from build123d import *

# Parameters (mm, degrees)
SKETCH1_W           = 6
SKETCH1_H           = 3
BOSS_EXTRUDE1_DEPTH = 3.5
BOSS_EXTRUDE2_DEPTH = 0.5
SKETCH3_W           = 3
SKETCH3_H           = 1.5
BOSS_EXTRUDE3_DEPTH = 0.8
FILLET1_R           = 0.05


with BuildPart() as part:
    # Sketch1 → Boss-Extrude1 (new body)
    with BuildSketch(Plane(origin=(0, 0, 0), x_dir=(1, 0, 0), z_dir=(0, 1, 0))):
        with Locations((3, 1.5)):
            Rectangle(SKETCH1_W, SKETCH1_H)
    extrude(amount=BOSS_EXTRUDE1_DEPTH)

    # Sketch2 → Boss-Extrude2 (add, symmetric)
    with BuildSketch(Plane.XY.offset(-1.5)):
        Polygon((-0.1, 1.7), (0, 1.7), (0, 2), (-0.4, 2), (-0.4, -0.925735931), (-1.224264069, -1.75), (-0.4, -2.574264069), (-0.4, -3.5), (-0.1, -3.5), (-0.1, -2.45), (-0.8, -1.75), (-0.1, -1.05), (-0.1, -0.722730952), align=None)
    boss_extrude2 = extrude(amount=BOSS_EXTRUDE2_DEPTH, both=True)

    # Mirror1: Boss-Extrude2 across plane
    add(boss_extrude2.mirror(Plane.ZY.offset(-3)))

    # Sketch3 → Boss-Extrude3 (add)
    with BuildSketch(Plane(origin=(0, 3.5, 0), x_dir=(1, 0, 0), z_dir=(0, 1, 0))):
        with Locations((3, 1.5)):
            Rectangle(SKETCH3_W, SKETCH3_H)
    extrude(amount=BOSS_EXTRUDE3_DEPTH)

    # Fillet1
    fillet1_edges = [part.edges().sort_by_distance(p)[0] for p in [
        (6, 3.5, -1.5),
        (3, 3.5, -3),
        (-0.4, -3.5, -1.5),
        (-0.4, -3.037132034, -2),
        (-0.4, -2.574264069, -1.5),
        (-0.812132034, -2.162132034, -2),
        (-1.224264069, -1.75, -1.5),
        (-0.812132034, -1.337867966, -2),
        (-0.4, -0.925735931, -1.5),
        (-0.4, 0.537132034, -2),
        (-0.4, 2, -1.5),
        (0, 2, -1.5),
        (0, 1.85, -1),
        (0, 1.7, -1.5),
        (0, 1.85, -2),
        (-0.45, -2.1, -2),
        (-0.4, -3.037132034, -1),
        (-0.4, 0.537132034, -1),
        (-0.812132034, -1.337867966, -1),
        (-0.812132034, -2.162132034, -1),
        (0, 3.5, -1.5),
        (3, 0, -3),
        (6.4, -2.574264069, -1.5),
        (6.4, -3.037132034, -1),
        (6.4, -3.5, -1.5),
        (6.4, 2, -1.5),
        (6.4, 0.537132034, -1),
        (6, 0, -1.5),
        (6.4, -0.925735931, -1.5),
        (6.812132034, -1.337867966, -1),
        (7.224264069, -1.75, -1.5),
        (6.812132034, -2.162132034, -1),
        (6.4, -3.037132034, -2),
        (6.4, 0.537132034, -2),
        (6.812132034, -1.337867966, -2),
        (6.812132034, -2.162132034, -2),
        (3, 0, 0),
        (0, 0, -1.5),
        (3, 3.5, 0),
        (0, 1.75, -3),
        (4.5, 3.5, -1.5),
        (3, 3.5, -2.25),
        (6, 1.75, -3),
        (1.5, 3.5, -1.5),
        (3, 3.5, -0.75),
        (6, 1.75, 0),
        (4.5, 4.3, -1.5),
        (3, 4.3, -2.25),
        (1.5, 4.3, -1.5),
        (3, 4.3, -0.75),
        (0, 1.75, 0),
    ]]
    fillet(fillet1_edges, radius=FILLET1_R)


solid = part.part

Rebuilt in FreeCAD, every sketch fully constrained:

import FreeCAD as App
import Part
import Sketcher
from FreeCAD import Vector
Q = App.Units.Quantity


def edges_at(feature, points):
    """Names of the edges that pass closest to the given points."""
    edges = feature.Shape.Edges
    near = lambda p: min(range(len(edges)), key=lambda i: edges[i].distToShape(Part.Vertex(*p))[0])
    return sorted({f"Edge{near(p) + 1}" for p in points})


def add_polygon(sketch, points):
    """Adds a closed chain of lines whose ends are joined by coincident constraints."""
    first, n = sketch.GeometryCount, len(points)
    for a, b in zip(points, points[1:] + points[:1]):
        sketch.addGeometry(Part.LineSegment(App.Vector(*a, 0), App.Vector(*b, 0)), False)
    for i in range(n):
        sketch.addConstraint(Sketcher.Constraint("Coincident", first + i, 2, first + (i + 1) % n, 1))

doc = App.newDocument("Part")
body = doc.addObject("PartDesign::Body", "Body")

# Sketch on XZ plane
sketch1 = body.newObject("Sketcher::SketchObject", "Sketch")
sketch1.AttachmentSupport = (doc.getObject("XZ_Plane"), [""])
sketch1.MapMode = "FlatFace"
add_polygon(sketch1, [(0, -3), (0, 0), (6, 0), (6, -3)])  # lines 0-3
sketch1.addConstraint([
    Sketcher.Constraint("Vertical", 0),
    Sketcher.Constraint("Horizontal", 1),
    Sketcher.Constraint("Vertical", 2),
    Sketcher.Constraint("Horizontal", 3),
    Sketcher.Constraint("Coincident", 0, 2, -1, 1),
    Sketcher.Constraint("DistanceX", 1, 1, 1, 2, Q("6 mm")),
    Sketcher.Constraint("DistanceY", 0, 1, 0, 2, Q("3 mm")),
])
pad1 = body.newObject("PartDesign::Pad", "Pad")
pad1.Profile = sketch1
pad1.Length = 3.5
pad1.Reversed = True

# Sketch on XY plane
sketch2 = body.newObject("Sketcher::SketchObject", "Sketch001")
sketch2.AttachmentSupport = (doc.getObject("XY_Plane"), [""])
sketch2.MapMode = "FlatFace"
sketch2.AttachmentOffset = App.Placement(Vector(0, 0, -1.5), App.Rotation())
add_polygon(sketch2, [(-0.1, 1.7), (0, 1.7), (0, 2), (-0.4, 2), (-0.4, -0.93), (-1.22, -1.75), (-0.4, -2.57), (-0.4, -3.5), (-0.1, -3.5), (-0.1, -2.45), (-0.8, -1.75), (-0.1, -1.05)])  # lines 0-11
sketch2.addConstraint([
    Sketcher.Constraint("Horizontal", 0),
    Sketcher.Constraint("Vertical", 1),
    Sketcher.Constraint("Horizontal", 2),
    Sketcher.Constraint("Vertical", 3),
    Sketcher.Constraint("Vertical", 6),
    Sketcher.Constraint("Horizontal", 7),
    Sketcher.Constraint("Vertical", 8),
    Sketcher.Constraint("Vertical", 11),
    Sketcher.Constraint("PointOnObject", 0, 2, -2),
    Sketcher.Constraint("Perpendicular", 4, 5),
    Sketcher.Constraint("Parallel", 5, 9),
    Sketcher.Constraint("Perpendicular", 9, 10),
    Sketcher.Constraint("Horizontal", 4, 2, 9, 2),
    Sketcher.Constraint("Vertical", 3, 2, 5, 2),
    Sketcher.Constraint("Vertical", 8, 2, 10, 2),
    Sketcher.Constraint("Equal", 7, 1),
    Sketcher.Constraint("Equal", 4, 5),
    Sketcher.Constraint("DistanceX", 0, 1, 0, 2, Q("0.1 mm")),
    Sketcher.Constraint("DistanceX", 2, 2, 2, 1, Q("0.4 mm")),
    Sketcher.Constraint("DistanceY", -1, 1, 1, 2, Q("2 mm")),
    Sketcher.Constraint("DistanceY", 8, 1, 8, 2, Q("1.05 mm")),
    Sketcher.Constraint("DistanceY", 11, 1, 11, 2, Q("2.75 mm")),
    Sketcher.Constraint("DistanceY", 6, 2, -1, 1, Q("3.5 mm")),
    Sketcher.Constraint("DistanceY", 3, 2, 3, 1, Q("2.925736 mm")),
])
pad2 = body.newObject("PartDesign::Pad", "Pad001")
pad2.Profile = sketch2
pad2.Length = 1
pad2.Midplane = True
doc.recompute()

datumplane = body.newObject("PartDesign::Plane", "DatumPlane")
datumplane.AttachmentSupport = (doc.getObject("YZ_Plane"), [""])
datumplane.MapMode = "FlatFace"
datumplane.AttachmentOffset = App.Placement(Vector(0, 0, 3), App.Rotation())
mirrored = body.newObject("PartDesign::Mirrored", "Mirrored")
mirrored.Originals = [pad2]
mirrored.MirrorPlane = (datumplane, [""])
body.Tip = mirrored

# Sketch on XZ plane
sketch3 = body.newObject("Sketcher::SketchObject", "Sketch002")
sketch3.AttachmentSupport = (doc.getObject("XZ_Plane"), [""])
sketch3.MapMode = "FlatFace"
sketch3.AttachmentOffset = App.Placement(Vector(0, 0, -3.5), App.Rotation())
add_polygon(sketch3, [(1.5, -2.2), (1.5, -0.8), (4.5, -0.8), (4.5, -2.2)])  # lines 0-3
sketch3.addConstraint([
    Sketcher.Constraint("Vertical", 0),
    Sketcher.Constraint("Horizontal", 1),
    Sketcher.Constraint("Vertical", 2),
    Sketcher.Constraint("Horizontal", 3),
    Sketcher.Constraint("DistanceX", 1, 1, 1, 2, Q("3 mm")),
    Sketcher.Constraint("DistanceY", 0, 1, 0, 2, Q("1.5 mm")),
    Sketcher.Constraint("DistanceX", -1, 1, 0, 2, Q("1.5 mm")),
    Sketcher.Constraint("DistanceY", 0, 2, -1, 1, Q("0.75 mm")),
])
pad3 = body.newObject("PartDesign::Pad", "Pad002")
pad3.Profile = sketch3
pad3.Length = 0.8
pad3.Reversed = True
doc.recompute()

fillet = body.newObject("PartDesign::Fillet", "Fillet")
fillet.Base = (pad3, edges_at(pad3, [
    (6, 3.5, -1.5),
    (3, 3.5, -3),
    (-0.4, -3.5, -1.5),
    (-0.4, -3.037, -2),
    (-0.4, -2.574, -1.5),
    (-0.812, -2.162, -2),
    (-1.224, -1.75, -1.5),
    (-0.812, -1.338, -2),
    (-0.4, -0.926, -1.5),
    (-0.4, 0.537, -2),
    (-0.4, 2, -1.5),
    (0, 2, -1.5),
    (0, 1.85, -1),
    (0, 1.7, -1.5),
    (0, 1.85, -2),
    (-0.45, -2.1, -2),
    (-0.4, -3.037, -1),
    (-0.4, 0.537, -1),
    (-0.812, -1.338, -1),
    (-0.812, -2.162, -1),
    (0, 3.5, -1.5),
    (3, 0, -3),
    (6.4, -2.574, -1.5),
    (6.4, -3.037, -1),
    (6.4, -3.5, -1.5),
    (6.4, 2, -1.5),
    (6.4, 0.537, -1),
    (6, 0, -1.5),
    (6.4, -0.926, -1.5),
    (6.812, -1.338, -1),
    (7.224, -1.75, -1.5),
    (6.812, -2.162, -1),
    (6.4, -3.037, -2),
    (6.4, 0.537, -2),
    (6.812, -1.338, -2),
    (6.812, -2.162, -2),
    (3, 0, 0),
    (0, 0, -1.5),
    (3, 3.5, 0),
    (0, 1.75, -3),
    (4.5, 3.5, -1.5),
    (3, 3.5, -2.25),
    (6, 1.75, -3),
    (1.5, 3.5, -1.5),
    (3, 3.5, -0.75),
    (6, 1.75, 0),
    (4.5, 4.3, -1.5),
    (3, 4.3, -2.25),
    (1.5, 4.3, -1.5),
    (3, 4.3, -0.75),
    (0, 1.75, 0),
]))
fillet.Radius = 0.05

doc.recompute()
